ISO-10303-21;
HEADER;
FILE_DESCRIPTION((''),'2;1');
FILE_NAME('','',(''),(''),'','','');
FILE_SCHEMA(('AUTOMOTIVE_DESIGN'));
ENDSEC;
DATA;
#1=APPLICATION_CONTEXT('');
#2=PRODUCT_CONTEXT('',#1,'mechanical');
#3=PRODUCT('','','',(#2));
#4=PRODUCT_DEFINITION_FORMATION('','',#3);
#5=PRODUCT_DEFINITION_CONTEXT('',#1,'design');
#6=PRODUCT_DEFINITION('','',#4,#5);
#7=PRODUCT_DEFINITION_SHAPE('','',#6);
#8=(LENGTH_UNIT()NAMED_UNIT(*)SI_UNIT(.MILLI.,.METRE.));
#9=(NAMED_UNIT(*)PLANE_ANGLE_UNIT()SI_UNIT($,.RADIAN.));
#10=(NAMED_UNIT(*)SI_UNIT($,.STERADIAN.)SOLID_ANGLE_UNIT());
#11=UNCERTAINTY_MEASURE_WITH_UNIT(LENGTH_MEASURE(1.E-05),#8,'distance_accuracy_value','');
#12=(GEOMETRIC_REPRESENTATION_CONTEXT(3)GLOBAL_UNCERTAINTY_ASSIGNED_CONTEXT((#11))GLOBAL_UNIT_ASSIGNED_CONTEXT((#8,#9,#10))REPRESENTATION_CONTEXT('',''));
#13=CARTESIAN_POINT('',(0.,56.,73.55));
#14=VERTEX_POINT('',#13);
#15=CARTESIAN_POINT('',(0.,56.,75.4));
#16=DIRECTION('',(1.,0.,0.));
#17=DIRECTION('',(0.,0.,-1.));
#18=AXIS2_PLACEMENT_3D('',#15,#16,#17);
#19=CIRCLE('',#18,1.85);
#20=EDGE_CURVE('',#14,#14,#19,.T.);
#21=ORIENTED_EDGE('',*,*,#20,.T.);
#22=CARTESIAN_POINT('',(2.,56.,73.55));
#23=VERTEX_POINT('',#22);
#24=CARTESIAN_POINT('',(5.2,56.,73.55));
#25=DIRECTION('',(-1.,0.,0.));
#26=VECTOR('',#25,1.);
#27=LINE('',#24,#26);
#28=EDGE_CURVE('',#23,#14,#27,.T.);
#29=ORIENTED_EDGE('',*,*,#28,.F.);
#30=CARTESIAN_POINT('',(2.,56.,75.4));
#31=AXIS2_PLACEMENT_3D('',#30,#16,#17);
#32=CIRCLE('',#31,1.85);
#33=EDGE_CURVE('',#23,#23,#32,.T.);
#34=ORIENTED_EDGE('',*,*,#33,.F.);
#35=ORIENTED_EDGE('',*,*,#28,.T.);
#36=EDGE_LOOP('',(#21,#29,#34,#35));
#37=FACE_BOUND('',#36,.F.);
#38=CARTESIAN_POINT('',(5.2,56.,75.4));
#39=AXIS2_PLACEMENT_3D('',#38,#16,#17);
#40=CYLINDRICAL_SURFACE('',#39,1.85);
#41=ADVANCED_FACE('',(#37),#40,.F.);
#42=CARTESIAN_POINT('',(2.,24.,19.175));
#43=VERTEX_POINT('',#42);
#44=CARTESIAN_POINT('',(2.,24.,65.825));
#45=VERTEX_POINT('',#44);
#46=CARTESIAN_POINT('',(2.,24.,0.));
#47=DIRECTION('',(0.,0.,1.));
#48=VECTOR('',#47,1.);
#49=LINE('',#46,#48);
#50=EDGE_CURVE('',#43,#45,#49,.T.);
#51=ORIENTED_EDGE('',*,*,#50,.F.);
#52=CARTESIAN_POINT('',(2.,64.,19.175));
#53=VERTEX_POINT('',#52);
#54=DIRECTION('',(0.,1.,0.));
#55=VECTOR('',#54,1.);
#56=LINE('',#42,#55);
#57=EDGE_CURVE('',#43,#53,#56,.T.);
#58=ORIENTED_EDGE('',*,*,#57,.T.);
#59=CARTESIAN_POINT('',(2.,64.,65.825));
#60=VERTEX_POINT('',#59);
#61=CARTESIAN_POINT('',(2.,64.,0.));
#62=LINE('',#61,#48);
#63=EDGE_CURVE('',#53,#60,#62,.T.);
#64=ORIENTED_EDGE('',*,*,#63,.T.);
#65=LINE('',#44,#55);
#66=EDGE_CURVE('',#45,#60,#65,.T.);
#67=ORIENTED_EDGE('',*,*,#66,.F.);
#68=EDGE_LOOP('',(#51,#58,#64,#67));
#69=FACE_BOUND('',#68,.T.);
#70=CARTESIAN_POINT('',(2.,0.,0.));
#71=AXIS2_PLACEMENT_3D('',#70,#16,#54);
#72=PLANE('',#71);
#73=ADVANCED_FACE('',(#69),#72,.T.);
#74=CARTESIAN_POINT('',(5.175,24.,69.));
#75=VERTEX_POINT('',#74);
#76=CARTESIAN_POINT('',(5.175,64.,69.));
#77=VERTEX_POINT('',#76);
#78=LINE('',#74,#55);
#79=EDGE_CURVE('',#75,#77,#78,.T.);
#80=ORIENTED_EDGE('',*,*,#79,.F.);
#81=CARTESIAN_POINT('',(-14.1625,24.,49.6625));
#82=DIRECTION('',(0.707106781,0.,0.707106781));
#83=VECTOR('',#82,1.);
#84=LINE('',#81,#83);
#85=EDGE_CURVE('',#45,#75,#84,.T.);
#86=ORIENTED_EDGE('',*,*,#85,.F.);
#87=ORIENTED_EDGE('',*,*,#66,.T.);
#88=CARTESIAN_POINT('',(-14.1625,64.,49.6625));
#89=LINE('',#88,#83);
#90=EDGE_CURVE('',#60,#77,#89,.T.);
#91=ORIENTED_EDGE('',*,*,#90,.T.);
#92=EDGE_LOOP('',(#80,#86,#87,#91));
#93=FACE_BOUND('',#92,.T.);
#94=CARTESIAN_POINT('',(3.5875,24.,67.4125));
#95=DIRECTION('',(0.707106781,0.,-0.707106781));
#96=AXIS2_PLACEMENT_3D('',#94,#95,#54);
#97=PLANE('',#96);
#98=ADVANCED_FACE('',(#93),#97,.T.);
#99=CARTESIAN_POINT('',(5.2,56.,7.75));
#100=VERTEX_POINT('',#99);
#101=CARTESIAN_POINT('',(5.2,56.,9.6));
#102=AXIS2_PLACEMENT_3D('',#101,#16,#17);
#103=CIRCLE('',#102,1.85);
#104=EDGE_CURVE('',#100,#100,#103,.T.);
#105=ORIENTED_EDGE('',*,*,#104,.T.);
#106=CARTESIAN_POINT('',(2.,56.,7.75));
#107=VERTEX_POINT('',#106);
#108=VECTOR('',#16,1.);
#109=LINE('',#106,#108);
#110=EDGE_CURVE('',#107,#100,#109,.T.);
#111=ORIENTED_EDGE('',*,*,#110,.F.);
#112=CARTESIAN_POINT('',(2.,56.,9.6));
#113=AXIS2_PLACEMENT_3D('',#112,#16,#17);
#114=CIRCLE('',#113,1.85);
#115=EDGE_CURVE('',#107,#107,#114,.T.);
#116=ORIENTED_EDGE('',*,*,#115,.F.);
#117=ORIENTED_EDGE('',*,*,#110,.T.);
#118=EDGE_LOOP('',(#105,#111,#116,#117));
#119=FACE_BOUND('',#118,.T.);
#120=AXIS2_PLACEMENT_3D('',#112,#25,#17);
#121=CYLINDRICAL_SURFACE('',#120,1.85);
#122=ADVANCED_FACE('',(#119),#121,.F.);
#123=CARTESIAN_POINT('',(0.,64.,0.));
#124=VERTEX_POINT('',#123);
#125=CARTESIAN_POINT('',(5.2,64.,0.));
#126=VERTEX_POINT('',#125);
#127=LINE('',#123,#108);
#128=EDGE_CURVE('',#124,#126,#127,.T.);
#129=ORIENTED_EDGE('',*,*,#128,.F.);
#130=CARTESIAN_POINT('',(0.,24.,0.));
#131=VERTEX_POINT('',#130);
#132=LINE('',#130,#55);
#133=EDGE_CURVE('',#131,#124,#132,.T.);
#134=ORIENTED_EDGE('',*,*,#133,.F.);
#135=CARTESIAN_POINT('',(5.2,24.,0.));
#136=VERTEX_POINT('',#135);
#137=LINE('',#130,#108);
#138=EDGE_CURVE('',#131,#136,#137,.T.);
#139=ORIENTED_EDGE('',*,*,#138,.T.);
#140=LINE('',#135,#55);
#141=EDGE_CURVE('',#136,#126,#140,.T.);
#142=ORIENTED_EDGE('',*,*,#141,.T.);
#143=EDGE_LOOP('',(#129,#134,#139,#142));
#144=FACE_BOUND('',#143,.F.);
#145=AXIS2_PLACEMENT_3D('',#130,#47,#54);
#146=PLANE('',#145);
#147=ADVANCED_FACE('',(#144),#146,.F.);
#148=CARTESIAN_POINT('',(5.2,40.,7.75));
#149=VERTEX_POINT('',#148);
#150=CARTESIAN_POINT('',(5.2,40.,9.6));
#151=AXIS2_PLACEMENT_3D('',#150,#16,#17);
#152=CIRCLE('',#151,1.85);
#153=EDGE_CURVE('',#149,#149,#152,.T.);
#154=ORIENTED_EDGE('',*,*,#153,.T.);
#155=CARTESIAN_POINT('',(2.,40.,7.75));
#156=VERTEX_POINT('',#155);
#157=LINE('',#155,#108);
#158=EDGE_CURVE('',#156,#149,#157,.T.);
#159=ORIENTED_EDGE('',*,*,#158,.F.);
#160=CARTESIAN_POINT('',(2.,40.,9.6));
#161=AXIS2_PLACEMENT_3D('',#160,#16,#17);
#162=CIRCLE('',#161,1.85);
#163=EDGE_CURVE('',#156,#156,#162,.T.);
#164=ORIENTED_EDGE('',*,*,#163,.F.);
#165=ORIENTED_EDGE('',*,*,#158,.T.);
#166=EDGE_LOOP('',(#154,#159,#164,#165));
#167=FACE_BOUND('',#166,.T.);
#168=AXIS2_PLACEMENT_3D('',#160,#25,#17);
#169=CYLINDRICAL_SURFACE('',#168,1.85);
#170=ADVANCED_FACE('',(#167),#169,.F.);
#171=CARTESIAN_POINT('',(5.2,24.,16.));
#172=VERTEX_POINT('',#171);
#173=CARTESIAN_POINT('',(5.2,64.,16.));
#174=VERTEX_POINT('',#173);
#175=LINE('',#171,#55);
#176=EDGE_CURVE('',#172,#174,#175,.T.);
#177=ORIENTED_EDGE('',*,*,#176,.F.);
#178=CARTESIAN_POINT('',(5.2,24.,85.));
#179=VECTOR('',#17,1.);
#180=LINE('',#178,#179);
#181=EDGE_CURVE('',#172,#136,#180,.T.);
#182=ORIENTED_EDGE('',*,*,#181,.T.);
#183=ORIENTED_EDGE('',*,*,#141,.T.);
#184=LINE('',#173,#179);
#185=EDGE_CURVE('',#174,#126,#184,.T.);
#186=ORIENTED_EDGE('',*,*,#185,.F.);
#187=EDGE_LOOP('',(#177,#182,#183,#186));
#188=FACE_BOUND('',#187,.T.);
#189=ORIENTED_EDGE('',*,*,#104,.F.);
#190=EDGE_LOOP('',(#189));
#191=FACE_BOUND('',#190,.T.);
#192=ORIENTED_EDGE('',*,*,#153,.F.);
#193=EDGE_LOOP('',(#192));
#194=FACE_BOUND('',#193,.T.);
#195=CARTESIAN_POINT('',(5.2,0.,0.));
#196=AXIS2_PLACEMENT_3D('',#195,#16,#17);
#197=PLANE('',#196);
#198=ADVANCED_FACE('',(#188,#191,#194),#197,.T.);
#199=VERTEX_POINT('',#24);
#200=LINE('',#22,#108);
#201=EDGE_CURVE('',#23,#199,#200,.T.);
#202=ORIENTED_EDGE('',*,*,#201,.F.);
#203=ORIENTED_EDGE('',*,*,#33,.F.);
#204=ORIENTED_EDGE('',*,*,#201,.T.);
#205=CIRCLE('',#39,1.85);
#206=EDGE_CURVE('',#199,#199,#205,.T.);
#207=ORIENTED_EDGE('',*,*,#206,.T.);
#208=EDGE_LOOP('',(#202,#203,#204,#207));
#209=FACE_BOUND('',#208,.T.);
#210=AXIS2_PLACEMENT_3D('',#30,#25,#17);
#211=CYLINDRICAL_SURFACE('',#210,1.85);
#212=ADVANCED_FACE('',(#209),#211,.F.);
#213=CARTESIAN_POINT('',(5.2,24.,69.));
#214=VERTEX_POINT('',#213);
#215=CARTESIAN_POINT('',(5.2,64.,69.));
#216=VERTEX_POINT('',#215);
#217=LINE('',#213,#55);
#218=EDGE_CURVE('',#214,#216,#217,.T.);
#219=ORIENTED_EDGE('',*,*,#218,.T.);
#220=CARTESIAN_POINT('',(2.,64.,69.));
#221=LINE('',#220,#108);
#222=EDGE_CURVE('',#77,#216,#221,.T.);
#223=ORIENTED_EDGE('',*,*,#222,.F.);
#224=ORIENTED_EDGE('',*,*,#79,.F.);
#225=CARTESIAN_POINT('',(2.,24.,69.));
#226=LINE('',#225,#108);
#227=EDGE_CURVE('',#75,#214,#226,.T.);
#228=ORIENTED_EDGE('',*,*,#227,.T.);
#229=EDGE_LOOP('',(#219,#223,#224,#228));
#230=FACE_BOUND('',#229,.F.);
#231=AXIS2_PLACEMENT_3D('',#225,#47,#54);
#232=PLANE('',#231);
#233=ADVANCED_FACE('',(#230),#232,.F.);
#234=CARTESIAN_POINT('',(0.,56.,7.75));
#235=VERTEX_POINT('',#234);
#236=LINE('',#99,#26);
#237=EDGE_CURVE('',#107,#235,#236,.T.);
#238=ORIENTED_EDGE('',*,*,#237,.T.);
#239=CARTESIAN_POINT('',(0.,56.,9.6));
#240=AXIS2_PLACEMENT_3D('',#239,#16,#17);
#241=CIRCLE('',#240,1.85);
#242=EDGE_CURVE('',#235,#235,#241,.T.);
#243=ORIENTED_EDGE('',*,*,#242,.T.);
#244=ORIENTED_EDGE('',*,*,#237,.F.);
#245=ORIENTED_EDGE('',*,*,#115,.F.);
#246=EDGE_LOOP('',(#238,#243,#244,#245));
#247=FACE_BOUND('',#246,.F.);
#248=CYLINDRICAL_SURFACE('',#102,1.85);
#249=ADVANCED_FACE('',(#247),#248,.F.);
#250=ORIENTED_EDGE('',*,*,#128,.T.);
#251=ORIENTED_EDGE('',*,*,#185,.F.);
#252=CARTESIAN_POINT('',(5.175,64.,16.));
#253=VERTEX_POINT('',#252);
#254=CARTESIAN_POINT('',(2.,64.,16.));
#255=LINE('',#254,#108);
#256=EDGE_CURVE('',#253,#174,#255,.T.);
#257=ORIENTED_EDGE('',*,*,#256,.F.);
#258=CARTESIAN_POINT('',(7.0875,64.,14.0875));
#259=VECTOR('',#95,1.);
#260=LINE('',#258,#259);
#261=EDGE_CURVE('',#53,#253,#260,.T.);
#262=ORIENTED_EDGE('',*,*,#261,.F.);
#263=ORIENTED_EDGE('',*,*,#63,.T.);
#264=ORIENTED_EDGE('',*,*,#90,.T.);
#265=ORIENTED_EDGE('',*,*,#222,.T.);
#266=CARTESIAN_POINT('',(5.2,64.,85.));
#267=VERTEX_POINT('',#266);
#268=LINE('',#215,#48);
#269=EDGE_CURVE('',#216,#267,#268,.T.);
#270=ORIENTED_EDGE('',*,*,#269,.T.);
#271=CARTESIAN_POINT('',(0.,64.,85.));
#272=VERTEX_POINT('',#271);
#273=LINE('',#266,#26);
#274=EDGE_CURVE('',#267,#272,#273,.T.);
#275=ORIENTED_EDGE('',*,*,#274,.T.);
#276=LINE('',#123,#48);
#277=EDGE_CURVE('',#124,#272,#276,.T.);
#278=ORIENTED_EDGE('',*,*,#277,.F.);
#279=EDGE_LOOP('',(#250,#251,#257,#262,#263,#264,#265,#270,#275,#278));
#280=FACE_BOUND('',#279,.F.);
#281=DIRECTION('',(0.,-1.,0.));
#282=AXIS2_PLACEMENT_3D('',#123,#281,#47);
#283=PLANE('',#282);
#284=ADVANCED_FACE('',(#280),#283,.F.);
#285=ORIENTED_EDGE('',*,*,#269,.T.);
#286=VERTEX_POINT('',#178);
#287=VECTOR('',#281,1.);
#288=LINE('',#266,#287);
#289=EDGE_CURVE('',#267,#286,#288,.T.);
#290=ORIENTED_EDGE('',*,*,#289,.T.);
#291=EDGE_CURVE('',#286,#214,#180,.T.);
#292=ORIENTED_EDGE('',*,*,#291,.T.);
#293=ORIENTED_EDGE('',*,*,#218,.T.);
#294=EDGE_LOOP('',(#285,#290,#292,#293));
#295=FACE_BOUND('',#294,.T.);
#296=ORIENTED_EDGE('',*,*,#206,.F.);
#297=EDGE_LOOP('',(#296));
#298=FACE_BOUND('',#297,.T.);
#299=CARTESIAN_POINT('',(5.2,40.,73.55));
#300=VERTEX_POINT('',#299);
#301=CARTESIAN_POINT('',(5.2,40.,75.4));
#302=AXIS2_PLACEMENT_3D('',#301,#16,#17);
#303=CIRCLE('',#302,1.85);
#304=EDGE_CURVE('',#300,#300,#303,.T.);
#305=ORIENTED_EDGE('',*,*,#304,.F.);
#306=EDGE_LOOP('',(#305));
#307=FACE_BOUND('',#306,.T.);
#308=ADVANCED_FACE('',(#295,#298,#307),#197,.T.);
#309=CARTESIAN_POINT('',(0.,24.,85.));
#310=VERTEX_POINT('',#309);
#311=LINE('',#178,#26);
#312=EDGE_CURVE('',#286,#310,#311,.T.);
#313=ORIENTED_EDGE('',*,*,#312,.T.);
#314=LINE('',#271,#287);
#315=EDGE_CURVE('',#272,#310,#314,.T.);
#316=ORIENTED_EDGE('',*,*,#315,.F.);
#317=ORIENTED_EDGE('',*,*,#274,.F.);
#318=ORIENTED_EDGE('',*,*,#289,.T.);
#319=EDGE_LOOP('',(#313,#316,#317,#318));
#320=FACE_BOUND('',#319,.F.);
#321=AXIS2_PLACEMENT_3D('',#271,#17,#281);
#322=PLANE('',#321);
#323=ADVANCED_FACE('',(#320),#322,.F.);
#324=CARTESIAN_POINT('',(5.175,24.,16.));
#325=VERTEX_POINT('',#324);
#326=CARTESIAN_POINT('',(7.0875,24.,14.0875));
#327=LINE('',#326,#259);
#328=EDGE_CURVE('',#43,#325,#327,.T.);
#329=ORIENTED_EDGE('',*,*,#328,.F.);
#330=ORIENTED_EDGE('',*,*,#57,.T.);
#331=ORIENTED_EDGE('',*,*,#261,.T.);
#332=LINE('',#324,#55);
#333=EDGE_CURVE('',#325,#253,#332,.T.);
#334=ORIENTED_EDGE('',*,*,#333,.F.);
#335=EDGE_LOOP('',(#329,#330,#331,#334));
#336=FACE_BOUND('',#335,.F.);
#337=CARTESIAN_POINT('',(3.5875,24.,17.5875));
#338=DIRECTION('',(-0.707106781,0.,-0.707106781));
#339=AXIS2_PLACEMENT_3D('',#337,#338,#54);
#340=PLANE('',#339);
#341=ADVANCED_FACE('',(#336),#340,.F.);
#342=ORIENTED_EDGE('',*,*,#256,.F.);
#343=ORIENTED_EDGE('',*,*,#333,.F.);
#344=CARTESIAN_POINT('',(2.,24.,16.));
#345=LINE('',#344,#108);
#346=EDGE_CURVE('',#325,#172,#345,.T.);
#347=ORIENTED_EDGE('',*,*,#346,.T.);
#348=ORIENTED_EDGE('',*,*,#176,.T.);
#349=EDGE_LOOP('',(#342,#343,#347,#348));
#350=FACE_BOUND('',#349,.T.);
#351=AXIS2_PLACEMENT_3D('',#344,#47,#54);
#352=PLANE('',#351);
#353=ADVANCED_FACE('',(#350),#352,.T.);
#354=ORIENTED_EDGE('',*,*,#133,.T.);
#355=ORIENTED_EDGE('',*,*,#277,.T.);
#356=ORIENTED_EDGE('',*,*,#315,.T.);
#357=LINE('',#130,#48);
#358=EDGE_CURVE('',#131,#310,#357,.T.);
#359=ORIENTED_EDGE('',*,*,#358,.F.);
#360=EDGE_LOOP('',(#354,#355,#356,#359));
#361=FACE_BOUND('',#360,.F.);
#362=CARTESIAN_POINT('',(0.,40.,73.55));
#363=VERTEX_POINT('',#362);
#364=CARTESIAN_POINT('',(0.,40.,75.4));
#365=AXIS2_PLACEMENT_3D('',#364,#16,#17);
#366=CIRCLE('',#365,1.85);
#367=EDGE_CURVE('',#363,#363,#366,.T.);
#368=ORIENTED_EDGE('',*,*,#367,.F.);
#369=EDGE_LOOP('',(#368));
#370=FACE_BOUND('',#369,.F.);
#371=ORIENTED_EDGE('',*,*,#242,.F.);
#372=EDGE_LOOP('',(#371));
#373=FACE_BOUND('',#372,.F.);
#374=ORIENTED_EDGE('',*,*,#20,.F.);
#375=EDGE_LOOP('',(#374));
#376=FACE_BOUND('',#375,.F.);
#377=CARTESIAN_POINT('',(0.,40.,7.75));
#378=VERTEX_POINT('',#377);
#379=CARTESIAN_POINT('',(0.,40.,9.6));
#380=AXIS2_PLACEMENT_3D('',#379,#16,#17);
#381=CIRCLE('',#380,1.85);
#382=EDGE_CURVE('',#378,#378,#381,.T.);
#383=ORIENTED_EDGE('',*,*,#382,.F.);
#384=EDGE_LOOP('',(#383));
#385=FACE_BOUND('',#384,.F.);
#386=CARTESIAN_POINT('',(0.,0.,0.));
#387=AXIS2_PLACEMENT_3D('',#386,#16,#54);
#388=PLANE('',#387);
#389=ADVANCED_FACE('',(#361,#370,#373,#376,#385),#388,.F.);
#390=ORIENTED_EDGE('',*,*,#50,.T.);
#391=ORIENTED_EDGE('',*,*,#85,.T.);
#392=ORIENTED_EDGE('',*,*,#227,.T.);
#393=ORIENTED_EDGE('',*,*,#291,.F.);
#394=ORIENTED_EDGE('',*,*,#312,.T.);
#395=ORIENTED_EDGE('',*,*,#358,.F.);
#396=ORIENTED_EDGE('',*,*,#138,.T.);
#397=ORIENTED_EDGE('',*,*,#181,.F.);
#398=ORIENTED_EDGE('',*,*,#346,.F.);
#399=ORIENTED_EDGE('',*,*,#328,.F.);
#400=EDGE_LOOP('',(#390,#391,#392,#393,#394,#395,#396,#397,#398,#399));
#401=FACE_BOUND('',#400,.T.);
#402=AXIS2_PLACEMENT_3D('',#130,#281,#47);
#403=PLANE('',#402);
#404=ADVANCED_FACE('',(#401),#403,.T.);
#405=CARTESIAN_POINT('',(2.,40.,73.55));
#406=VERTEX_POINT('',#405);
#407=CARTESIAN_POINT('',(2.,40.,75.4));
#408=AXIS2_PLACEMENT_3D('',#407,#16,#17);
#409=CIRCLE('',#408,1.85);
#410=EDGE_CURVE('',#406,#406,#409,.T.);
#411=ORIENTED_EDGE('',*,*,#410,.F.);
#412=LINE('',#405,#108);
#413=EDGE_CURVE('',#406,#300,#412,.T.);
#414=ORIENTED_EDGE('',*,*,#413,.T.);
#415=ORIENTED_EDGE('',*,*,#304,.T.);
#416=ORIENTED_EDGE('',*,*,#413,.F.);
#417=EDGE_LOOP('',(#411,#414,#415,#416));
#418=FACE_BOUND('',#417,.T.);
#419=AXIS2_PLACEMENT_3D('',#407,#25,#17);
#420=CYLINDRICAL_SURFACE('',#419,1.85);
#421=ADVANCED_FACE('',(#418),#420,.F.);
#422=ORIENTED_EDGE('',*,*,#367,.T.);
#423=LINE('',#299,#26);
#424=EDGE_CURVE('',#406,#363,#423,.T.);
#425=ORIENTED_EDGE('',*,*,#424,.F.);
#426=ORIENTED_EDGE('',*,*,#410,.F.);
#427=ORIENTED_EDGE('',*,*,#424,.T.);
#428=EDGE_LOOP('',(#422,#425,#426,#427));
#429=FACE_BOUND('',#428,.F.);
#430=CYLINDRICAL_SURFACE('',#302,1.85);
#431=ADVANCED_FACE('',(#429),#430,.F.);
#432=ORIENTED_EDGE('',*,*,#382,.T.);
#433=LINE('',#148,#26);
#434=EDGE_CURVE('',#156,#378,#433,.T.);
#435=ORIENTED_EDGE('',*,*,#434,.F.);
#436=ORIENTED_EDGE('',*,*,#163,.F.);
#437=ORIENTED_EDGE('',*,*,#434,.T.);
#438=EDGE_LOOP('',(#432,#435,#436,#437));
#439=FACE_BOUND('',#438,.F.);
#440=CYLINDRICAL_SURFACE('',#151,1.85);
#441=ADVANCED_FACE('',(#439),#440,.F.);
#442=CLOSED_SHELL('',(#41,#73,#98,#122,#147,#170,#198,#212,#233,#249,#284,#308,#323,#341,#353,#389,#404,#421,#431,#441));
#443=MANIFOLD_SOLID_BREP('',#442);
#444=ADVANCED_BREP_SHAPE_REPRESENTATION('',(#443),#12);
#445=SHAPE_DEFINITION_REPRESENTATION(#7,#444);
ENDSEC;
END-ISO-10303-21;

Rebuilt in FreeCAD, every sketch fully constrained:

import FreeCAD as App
import Part
import Sketcher

V = App.Vector


def edges_at(feature, points):
    """Names of the edges that pass closest to the given points."""
    edges = feature.Shape.Edges
    near = lambda p: min(range(len(edges)), key=lambda i: edges[i].distToShape(Part.Vertex(*p))[0])
    return sorted({f"Edge{near(p) + 1}" for p in points})

doc = App.newDocument("Part")
body = doc.addObject("PartDesign::Body", "Body")

# Sketch on YZ plane
sketch1 = body.newObject("Sketcher::SketchObject", "Sketch")
sketch1.AttachmentSupport = (doc.getObject("YZ_Plane"), [""])
sketch1.MapMode = "FlatFace"
sketch1.addGeometry([
    Part.LineSegment(V(24, 85, 0), V(24, 0, 0)),
    Part.LineSegment(V(24, 0, 0), V(64, 0, 0)),
    Part.LineSegment(V(64, 0, 0), V(64, 85, 0)),
    Part.LineSegment(V(64, 85, 0), V(24, 85, 0)),
], False)
sketch1.addConstraint([
    Sketcher.Constraint("Coincident", 0, 2, 1, 1),
    Sketcher.Constraint("Coincident", 1, 2, 2, 1),
    Sketcher.Constraint("Coincident", 2, 2, 3, 1),
    Sketcher.Constraint("Coincident", 3, 2, 0, 1),
    Sketcher.Constraint("Vertical", 0),
    Sketcher.Constraint("Horizontal", 1),
    Sketcher.Constraint("Vertical", 2),
    Sketcher.Constraint("Horizontal", 3),
    Sketcher.Constraint("PointOnObject", 0, 2, -1),
    Sketcher.Constraint("DistanceY", 0, 2, 0, 1, 85.0),
    Sketcher.Constraint("DistanceX", 1, 1, 1, 2, 40.0),
    Sketcher.Constraint("DistanceX", -1, 1, 0, 2, 24.0),
])
pad1 = body.newObject("PartDesign::Pad", "Pad")
pad1.Profile = sketch1
pad1.Length = 2

# Sketch on YZ plane
sketch2 = body.newObject("Sketcher::SketchObject", "Sketch001")
sketch2.AttachmentSupport = (doc.getObject("YZ_Plane"), [""])
sketch2.MapMode = "FlatFace"
sketch2.AttachmentOffset = App.Placement(V(0, 0, 2), App.Rotation())
sketch2.addGeometry([
    Part.LineSegment(V(24, 85, 0), V(24, 69, 0)),  # 0
    Part.LineSegment(V(24, 69, 0), V(64, 69, 0)),  # 1
    Part.LineSegment(V(64, 69, 0), V(64, 85, 0)),  # 2
    Part.LineSegment(V(64, 85, 0), V(24, 85, 0)),  # 3
    Part.Circle(V(40, 75.4, 0), V(0, 0, 1), 1.85),  # 4
    Part.Circle(V(56, 75.4, 0), V(0, 0, 1), 1.85),  # 5
    Part.LineSegment(V(64, 16, 0), V(24, 16, 0)),  # 6
    Part.LineSegment(V(24, 16, 0), V(24, 0, 0)),  # 7
    Part.LineSegment(V(24, 0, 0), V(64, 0, 0)),  # 8
    Part.LineSegment(V(64, 0, 0), V(64, 16, 0)),  # 9
    Part.Circle(V(40, 9.6, 0), V(0, 0, 1), 1.85),  # 10
    Part.Circle(V(56, 9.6, 0), V(0, 0, 1), 1.85),  # 11
], False)
sketch2.addConstraint([
    Sketcher.Constraint("Coincident", 0, 2, 1, 1),
    Sketcher.Constraint("Coincident", 1, 2, 2, 1),
    Sketcher.Constraint("Coincident", 2, 2, 3, 1),
    Sketcher.Constraint("Coincident", 3, 2, 0, 1),
    Sketcher.Constraint("Coincident", 6, 2, 7, 1),
    Sketcher.Constraint("Coincident", 7, 2, 8, 1),
    Sketcher.Constraint("Coincident", 8, 2, 9, 1),
    Sketcher.Constraint("Coincident", 9, 2, 6, 1),
    Sketcher.Constraint("Vertical", 0),
    Sketcher.Constraint("Horizontal", 1),
    Sketcher.Constraint("Vertical", 2),
    Sketcher.Constraint("Horizontal", 3),
    Sketcher.Constraint("Horizontal", 6),
    Sketcher.Constraint("Vertical", 7),
    Sketcher.Constraint("Horizontal", 8),
    Sketcher.Constraint("Vertical", 9),
    Sketcher.Constraint("Equal", 4, 5),
    Sketcher.Constraint("Equal", 5, 10),
    Sketcher.Constraint("Equal", 10, 11),
    Sketcher.Constraint("PointOnObject", 7, 2, -1),
    Sketcher.Constraint("Horizontal", 4, 3, 5, 3),
    Sketcher.Constraint("Horizontal", 10, 3, 11, 3),
    Sketcher.Constraint("Vertical", 4, 3, 10, 3),
    Sketcher.Constraint("Vertical", 5, 3, 11, 3),
    Sketcher.Constraint("Vertical", 3, 2, 6, 2),
    Sketcher.Constraint("Vertical", 2, 2, 8, 2),
    Sketcher.Constraint("Equal", 2, 7),
    Sketcher.Constraint("Diameter", 4, 3.7),
    Sketcher.Constraint("DistanceX", 1, 1, 1, 2, 40.0),
    Sketcher.Constraint("DistanceY", 0, 2, 0, 1, 16.0),
    Sketcher.Constraint("DistanceX", -1, 1, 4, 3, 40.0),
    Sketcher.Constraint("DistanceX", -1, 1, 5, 3, 56.0),
    Sketcher.Constraint("DistanceX", -1, 1, 0, 2, 24.0),
    Sketcher.Constraint("DistanceY", -1, 1, 0, 2, 69.0),
    Sketcher.Constraint("DistanceY", -1, 1, 4, 3, 75.4),
    Sketcher.Constraint("DistanceY", -1, 1, 10, 3, 9.6),
])
pad2 = body.newObject("PartDesign::Pad", "Pad001")
pad2.Profile = sketch2
pad2.Length = 3.2
doc.recompute()

chamfer = body.newObject("PartDesign::Chamfer", "Chamfer")
chamfer.Base = (pad2, edges_at(pad2, [(2, 44, 16), (2, 44, 69)]))
chamfer.Size = 3.175

# Sketch on YZ plane
sketch3 = body.newObject("Sketcher::SketchObject", "Sketch002")
sketch3.AttachmentSupport = (doc.getObject("YZ_Plane"), [""])
sketch3.MapMode = "FlatFace"
sketch3.AttachmentOffset = App.Placement(V(0, 0, 5.2), App.Rotation())
sketch3.addGeometry([
    Part.Circle(V(56, 75.4, 0), V(0, 0, 1), 1.85),
    Part.Circle(V(40, 75.4, 0), V(0, 0, 1), 1.85),
    Part.Circle(V(40, 9.6, 0), V(0, 0, 1), 1.85),
    Part.Circle(V(56, 9.6, 0), V(0, 0, 1), 1.85),
], False)
sketch3.addConstraint([
    Sketcher.Constraint("Equal", 0, 1),
    Sketcher.Constraint("Equal", 1, 2),
    Sketcher.Constraint("Equal", 2, 3),
    Sketcher.Constraint("Horizontal", 0, 3, 1, 3),
    Sketcher.Constraint("Horizontal", 2, 3, 3, 3),
    Sketcher.Constraint("Vertical", 1, 3, 2, 3),
    Sketcher.Constraint("Vertical", 0, 3, 3, 3),
    Sketcher.Constraint("Diameter", 0, 3.7),
    Sketcher.Constraint("DistanceX", -1, 1, 0, 3, 56.0),
    Sketcher.Constraint("DistanceX", -1, 1, 1, 3, 40.0),
    Sketcher.Constraint("DistanceY", -1, 1, 0, 3, 75.4),
    Sketcher.Constraint("DistanceY", -1, 1, 2, 3, 9.6),
])
pocket1 = body.newObject("PartDesign::Pocket", "Pocket")
pocket1.Profile = sketch3
pocket1.Type = "ThroughAll"

doc.recompute()
